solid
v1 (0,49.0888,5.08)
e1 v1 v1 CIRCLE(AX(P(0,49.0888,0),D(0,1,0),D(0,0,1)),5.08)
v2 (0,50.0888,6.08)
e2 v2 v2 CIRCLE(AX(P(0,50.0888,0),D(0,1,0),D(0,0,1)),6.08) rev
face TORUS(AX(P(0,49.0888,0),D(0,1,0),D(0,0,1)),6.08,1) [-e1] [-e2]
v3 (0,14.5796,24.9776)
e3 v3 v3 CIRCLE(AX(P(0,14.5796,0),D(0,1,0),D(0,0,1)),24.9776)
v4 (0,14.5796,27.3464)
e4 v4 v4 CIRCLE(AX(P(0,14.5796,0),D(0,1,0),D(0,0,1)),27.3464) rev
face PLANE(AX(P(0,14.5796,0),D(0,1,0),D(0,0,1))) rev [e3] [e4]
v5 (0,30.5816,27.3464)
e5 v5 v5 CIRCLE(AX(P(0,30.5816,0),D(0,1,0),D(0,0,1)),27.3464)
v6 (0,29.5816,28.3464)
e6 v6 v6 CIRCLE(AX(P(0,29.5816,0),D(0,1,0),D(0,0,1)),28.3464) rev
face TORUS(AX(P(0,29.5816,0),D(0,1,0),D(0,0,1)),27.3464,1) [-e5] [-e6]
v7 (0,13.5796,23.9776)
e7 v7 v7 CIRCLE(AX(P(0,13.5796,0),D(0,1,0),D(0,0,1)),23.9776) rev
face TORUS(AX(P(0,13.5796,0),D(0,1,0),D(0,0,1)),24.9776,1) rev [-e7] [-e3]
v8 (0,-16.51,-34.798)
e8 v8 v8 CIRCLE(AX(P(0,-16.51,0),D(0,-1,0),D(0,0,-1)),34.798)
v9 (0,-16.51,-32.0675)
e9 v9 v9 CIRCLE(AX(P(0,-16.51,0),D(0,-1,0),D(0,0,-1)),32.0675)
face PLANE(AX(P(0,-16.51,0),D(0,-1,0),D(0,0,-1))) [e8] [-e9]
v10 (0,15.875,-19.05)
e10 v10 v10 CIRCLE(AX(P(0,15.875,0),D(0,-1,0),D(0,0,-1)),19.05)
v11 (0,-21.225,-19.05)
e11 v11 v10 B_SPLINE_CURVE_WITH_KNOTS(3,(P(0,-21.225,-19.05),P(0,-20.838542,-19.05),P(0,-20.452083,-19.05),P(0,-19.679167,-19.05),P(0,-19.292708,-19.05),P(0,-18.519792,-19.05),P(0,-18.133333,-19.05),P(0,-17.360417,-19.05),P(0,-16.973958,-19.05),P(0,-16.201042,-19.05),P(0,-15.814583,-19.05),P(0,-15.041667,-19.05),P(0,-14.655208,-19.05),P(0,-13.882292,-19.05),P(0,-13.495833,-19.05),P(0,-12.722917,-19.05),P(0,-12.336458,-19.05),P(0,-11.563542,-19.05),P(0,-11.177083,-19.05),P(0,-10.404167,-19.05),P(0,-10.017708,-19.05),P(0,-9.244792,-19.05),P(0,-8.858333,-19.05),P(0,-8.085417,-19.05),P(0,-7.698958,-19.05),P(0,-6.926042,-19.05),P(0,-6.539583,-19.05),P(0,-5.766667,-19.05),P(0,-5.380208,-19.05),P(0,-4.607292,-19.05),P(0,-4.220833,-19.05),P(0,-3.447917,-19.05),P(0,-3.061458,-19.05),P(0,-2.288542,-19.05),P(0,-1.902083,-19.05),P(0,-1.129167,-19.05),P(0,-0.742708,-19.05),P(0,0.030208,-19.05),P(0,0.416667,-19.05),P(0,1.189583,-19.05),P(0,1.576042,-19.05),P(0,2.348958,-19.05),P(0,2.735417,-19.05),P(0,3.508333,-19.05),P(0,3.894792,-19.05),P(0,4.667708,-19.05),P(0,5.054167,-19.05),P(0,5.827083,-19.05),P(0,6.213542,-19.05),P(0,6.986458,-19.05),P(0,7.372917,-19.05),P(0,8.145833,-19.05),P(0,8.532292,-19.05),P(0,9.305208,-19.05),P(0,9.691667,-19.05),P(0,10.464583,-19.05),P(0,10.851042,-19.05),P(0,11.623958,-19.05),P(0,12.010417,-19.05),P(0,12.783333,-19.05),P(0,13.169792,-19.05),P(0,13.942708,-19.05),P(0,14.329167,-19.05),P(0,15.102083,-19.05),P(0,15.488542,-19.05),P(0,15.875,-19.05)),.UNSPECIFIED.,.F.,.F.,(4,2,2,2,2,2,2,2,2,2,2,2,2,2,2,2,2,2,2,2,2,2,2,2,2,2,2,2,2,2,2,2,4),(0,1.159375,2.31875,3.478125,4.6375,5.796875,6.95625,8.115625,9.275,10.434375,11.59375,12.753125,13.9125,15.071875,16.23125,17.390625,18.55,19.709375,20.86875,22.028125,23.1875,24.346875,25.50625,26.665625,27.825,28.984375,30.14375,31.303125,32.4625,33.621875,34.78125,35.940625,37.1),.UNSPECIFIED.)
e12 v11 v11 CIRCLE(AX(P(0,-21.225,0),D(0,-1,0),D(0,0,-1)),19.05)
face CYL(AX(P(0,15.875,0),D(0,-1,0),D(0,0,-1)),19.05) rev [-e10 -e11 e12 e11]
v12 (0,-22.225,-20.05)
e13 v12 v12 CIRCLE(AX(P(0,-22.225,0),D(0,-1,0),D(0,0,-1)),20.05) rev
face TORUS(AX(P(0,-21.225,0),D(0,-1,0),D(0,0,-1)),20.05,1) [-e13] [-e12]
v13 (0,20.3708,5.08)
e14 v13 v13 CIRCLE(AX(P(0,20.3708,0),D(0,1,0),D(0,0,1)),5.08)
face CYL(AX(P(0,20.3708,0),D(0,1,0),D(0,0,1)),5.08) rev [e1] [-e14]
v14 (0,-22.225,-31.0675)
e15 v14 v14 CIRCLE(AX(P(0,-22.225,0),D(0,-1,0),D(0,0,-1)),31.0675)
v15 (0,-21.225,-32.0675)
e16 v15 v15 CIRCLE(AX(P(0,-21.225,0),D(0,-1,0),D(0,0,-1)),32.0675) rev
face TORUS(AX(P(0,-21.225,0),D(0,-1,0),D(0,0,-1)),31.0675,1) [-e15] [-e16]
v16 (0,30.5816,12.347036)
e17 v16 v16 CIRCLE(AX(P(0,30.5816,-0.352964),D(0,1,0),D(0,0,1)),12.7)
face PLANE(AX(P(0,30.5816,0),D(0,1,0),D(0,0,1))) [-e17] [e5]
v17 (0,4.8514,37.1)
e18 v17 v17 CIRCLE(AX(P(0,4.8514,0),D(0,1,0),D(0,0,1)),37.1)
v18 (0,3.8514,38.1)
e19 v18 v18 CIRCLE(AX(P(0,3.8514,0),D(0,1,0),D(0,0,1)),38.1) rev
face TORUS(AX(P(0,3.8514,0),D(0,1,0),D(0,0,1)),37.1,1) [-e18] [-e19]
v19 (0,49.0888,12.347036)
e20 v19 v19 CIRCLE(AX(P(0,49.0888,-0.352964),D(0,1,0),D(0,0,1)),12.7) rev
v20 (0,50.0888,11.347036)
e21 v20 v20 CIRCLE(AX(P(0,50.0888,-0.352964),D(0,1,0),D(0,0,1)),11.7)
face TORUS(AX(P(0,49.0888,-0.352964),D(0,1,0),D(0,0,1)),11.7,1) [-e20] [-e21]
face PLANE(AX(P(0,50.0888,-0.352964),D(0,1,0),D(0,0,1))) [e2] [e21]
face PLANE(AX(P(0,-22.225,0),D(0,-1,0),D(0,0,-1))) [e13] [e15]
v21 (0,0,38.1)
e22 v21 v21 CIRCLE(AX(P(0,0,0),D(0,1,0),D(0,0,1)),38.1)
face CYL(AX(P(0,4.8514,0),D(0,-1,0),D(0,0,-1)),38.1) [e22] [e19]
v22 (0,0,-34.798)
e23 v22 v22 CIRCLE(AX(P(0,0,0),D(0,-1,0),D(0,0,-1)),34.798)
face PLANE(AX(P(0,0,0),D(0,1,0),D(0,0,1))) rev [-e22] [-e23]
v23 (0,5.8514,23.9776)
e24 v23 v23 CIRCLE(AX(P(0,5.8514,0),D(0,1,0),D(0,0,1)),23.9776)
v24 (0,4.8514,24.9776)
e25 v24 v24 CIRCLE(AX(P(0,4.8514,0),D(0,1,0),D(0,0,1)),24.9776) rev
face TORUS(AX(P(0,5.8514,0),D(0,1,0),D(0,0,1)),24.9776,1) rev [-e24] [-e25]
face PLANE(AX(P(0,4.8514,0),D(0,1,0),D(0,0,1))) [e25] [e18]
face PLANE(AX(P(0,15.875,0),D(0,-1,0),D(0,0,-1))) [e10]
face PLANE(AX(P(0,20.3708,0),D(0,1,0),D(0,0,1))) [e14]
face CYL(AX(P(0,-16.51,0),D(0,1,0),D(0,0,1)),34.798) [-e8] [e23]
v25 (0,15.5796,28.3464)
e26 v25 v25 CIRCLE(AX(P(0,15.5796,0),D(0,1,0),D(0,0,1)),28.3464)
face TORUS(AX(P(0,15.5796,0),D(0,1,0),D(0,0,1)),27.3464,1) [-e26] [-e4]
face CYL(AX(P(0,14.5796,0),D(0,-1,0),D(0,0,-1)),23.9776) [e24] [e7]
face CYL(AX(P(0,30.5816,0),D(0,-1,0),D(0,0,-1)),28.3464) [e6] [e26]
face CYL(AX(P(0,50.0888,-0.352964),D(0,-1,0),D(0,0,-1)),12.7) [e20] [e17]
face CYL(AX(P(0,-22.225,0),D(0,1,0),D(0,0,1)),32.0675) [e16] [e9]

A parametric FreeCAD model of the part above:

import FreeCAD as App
import Part
import Sketcher

V = App.Vector
Q = App.Units.Quantity


def edges_at(feature, points):
    """Names of the edges that pass closest to the given points."""
    edges = feature.Shape.Edges
    near = lambda p: min(range(len(edges)), key=lambda i: edges[i].distToShape(Part.Vertex(*p))[0])
    return sorted({f"Edge{near(p) + 1}" for p in points})

doc = App.newDocument("Part")
params = doc.addObject("Spreadsheet::Sheet", "Params")
for row, (alias, value) in enumerate([
    ("sketch1_diameter", "3 in"),
    ("pad1_length", "0.191 in"),
    ("sketch2_diameter", "1.888 in"),
    ("pad2_length", "0.383 in"),
    ("sketch3_diameter", "2.232 in"),
    ("pad3_length", "0.63 in"),
    ("sketch4_diameter", "1 in"),
    ("pad4_length", "0.768 in"),
    ("sketch5_diameter", "2.74 in"),
    ("pad5_length", "0.65 in"),
    ("sketch6_diameter", "2.525 in"),
    ("pad6_length", "0.225 in"),
    ("sketch7_diameter", "1.5 in"),
    ("pocket1_length", "1.5 in"),
    ("sketch8_diameter", "0.4 in"),
    ("pocket2_length", "1.17 in"),
    ("fillet_radius", "1 mm"),
], start=1):
    params.set(f"A{row}", alias)
    params.set(f"B{row}", "=" + value)
    params.setAlias(f"B{row}", alias)

body = doc.addObject("PartDesign::Body", "Body")

sketch1 = body.newObject("Sketcher::SketchObject", "Sketch")
sketch1.AttachmentSupport = (doc.getObject("XZ_Plane"), [""])
sketch1.MapMode = "FlatFace"
sketch1.addGeometry(Part.Circle(V(0, 0, 0), V(0, 0, 1), 38), False)
sketch1.addConstraint([
    Sketcher.Constraint("Coincident", 0, 3, -1, 1),
    Sketcher.Constraint("Diameter", 0, Q("3 in")),
])
sketch1.setExpression("Constraints[1]", "Params.sketch1_diameter")
pad1 = body.newObject("PartDesign::Pad", "Pad")
pad1.Profile = sketch1
pad1.setExpression("Length", "Params.pad1_length")
pad1.Reversed = True

sketch2 = body.newObject("Sketcher::SketchObject", "Sketch001")
sketch2.AttachmentSupport = (doc.getObject("XZ_Plane"), [""])
sketch2.MapMode = "FlatFace"
sketch2.AttachmentOffset = App.Placement(V(0, 0, -0.191 * 25.4), App.Rotation())
sketch2.addGeometry(Part.Circle(V(0, 0, 0), V(0, 0, 1), 24), False)
sketch2.addConstraint([
    Sketcher.Constraint("Coincident", 0, 3, -1, 1),
    Sketcher.Constraint("Diameter", 0, Q("1.888 in")),
])
sketch2.setExpression("Constraints[1]", "Params.sketch2_diameter")
pad2 = body.newObject("PartDesign::Pad", "Pad001")
pad2.Profile = sketch2
pad2.setExpression("Length", "Params.pad2_length")
pad2.Reversed = True

sketch3 = body.newObject("Sketcher::SketchObject", "Sketch002")
sketch3.AttachmentSupport = (doc.getObject("XZ_Plane"), [""])
sketch3.MapMode = "FlatFace"
sketch3.AttachmentOffset = App.Placement(V(0, 0, -0.574 * 25.4), App.Rotation())
sketch3.addGeometry(Part.Circle(V(0, 0, 0), V(0, 0, 1), 28), False)
sketch3.addConstraint([
    Sketcher.Constraint("Coincident", 0, 3, -1, 1),
    Sketcher.Constraint("Diameter", 0, Q("2.232 in")),
])
sketch3.setExpression("Constraints[1]", "Params.sketch3_diameter")
pad3 = body.newObject("PartDesign::Pad", "Pad002")
pad3.Profile = sketch3
pad3.setExpression("Length", "Params.pad3_length")
pad3.Reversed = True

sketch4 = body.newObject("Sketcher::SketchObject", "Sketch003")
sketch4.AttachmentSupport = (doc.getObject("XZ_Plane"), [""])
sketch4.MapMode = "FlatFace"
sketch4.AttachmentOffset = App.Placement(V(0, 0, -1.204 * 25.4), App.Rotation())
sketch4.addGeometry(Part.Circle(V(0, 0, 0), V(0, 0, 1), 13), False)
sketch4.addConstraint([
    Sketcher.Constraint("PointOnObject", 0, 3, -2),
    Sketcher.Constraint("Diameter", 0, Q("1 in")),
    Sketcher.Constraint("DistanceY", 0, 3, -1, 1, 0.352964),
])
sketch4.setExpression("Constraints[1]", "Params.sketch4_diameter")
pad4 = body.newObject("PartDesign::Pad", "Pad003")
pad4.Profile = sketch4
pad4.setExpression("Length", "Params.pad4_length")
pad4.Reversed = True

sketch5 = body.newObject("Sketcher::SketchObject", "Sketch004")
sketch5.AttachmentSupport = (doc.getObject("XZ_Plane"), [""])
sketch5.MapMode = "FlatFace"
sketch5.addGeometry(Part.Circle(V(0, 0, 0), V(0, 0, 1), 35), False)
sketch5.addConstraint([
    Sketcher.Constraint("Coincident", 0, 3, -1, 1),
    Sketcher.Constraint("Diameter", 0, Q("2.74 in")),
])
sketch5.setExpression("Constraints[1]", "Params.sketch5_diameter")
pad5 = body.newObject("PartDesign::Pad", "Pad004")
pad5.Profile = sketch5
pad5.setExpression("Length", "Params.pad5_length")

sketch6 = body.newObject("Sketcher::SketchObject", "Sketch005")
sketch6.AttachmentSupport = (doc.getObject("XZ_Plane"), [""])
sketch6.MapMode = "FlatFace"
sketch6.AttachmentOffset = App.Placement(V(0, 0, 0.65 * 25.4), App.Rotation())
sketch6.addGeometry(Part.Circle(V(0, 0, 0), V(0, 0, 1), 32), False)
sketch6.addConstraint([
    Sketcher.Constraint("Coincident", 0, 3, -1, 1),
    Sketcher.Constraint("Diameter", 0, Q("2.525 in")),
])
sketch6.setExpression("Constraints[1]", "Params.sketch6_diameter")
pad6 = body.newObject("PartDesign::Pad", "Pad005")
pad6.Profile = sketch6
pad6.setExpression("Length", "Params.pad6_length")

sketch7 = body.newObject("Sketcher::SketchObject", "Sketch006")
sketch7.AttachmentSupport = (doc.getObject("XZ_Plane"), [""])
sketch7.MapMode = "FlatFace"
sketch7.AttachmentOffset = App.Placement(V(0, 0, 0.875 * 25.4), App.Rotation())
sketch7.addGeometry(Part.Circle(V(0, 0, 0), V(0, 0, 1), 19), False)
sketch7.addConstraint([
    Sketcher.Constraint("Coincident", 0, 3, -1, 1),
    Sketcher.Constraint("Diameter", 0, Q("1.5 in")),
])
sketch7.setExpression("Constraints[1]", "Params.sketch7_diameter")
pocket1 = body.newObject("PartDesign::Pocket", "Pocket")
pocket1.Profile = sketch7
pocket1.setExpression("Length", "Params.pocket1_length")

sketch8 = body.newObject("Sketcher::SketchObject", "Sketch007")
sketch8.AttachmentSupport = (doc.getObject("XZ_Plane"), [""])
sketch8.MapMode = "FlatFace"
sketch8.AttachmentOffset = App.Placement(V(0, 0, -1.972 * 25.4), App.Rotation())
sketch8.addGeometry(Part.Circle(V(0, 0, 0), V(0, 0, 1), 5), False)
sketch8.addConstraint([
    Sketcher.Constraint("Coincident", 0, 3, -1, 1),
    Sketcher.Constraint("Diameter", 0, Q("0.4 in")),
])
sketch8.setExpression("Constraints[1]", "Params.sketch8_diameter")
pocket2 = body.newObject("PartDesign::Pocket", "Pocket001")
pocket2.Profile = sketch8
pocket2.setExpression("Length", "Params.pocket2_length")
pocket2.Reversed = True
doc.recompute()

fillet = body.newObject("PartDesign::Fillet", "Fillet")
fillet.Base = (pocket2, edges_at(pocket2, [
    (0, 14.58, -28.346),
    (0, 30.582, -28.346),
    (0, 50.089, -13.053),
    (0, -22.225, 32.068),
    (0, -22.225, 19.05),
    (0, 50.089, -5.08),
    (0, 4.851, -38.1),
    (0, 4.851, -23.978),
    (0, 14.58, -23.978),
]))
fillet.setExpression("Radius", "Params.fillet_radius")

doc.recompute()
